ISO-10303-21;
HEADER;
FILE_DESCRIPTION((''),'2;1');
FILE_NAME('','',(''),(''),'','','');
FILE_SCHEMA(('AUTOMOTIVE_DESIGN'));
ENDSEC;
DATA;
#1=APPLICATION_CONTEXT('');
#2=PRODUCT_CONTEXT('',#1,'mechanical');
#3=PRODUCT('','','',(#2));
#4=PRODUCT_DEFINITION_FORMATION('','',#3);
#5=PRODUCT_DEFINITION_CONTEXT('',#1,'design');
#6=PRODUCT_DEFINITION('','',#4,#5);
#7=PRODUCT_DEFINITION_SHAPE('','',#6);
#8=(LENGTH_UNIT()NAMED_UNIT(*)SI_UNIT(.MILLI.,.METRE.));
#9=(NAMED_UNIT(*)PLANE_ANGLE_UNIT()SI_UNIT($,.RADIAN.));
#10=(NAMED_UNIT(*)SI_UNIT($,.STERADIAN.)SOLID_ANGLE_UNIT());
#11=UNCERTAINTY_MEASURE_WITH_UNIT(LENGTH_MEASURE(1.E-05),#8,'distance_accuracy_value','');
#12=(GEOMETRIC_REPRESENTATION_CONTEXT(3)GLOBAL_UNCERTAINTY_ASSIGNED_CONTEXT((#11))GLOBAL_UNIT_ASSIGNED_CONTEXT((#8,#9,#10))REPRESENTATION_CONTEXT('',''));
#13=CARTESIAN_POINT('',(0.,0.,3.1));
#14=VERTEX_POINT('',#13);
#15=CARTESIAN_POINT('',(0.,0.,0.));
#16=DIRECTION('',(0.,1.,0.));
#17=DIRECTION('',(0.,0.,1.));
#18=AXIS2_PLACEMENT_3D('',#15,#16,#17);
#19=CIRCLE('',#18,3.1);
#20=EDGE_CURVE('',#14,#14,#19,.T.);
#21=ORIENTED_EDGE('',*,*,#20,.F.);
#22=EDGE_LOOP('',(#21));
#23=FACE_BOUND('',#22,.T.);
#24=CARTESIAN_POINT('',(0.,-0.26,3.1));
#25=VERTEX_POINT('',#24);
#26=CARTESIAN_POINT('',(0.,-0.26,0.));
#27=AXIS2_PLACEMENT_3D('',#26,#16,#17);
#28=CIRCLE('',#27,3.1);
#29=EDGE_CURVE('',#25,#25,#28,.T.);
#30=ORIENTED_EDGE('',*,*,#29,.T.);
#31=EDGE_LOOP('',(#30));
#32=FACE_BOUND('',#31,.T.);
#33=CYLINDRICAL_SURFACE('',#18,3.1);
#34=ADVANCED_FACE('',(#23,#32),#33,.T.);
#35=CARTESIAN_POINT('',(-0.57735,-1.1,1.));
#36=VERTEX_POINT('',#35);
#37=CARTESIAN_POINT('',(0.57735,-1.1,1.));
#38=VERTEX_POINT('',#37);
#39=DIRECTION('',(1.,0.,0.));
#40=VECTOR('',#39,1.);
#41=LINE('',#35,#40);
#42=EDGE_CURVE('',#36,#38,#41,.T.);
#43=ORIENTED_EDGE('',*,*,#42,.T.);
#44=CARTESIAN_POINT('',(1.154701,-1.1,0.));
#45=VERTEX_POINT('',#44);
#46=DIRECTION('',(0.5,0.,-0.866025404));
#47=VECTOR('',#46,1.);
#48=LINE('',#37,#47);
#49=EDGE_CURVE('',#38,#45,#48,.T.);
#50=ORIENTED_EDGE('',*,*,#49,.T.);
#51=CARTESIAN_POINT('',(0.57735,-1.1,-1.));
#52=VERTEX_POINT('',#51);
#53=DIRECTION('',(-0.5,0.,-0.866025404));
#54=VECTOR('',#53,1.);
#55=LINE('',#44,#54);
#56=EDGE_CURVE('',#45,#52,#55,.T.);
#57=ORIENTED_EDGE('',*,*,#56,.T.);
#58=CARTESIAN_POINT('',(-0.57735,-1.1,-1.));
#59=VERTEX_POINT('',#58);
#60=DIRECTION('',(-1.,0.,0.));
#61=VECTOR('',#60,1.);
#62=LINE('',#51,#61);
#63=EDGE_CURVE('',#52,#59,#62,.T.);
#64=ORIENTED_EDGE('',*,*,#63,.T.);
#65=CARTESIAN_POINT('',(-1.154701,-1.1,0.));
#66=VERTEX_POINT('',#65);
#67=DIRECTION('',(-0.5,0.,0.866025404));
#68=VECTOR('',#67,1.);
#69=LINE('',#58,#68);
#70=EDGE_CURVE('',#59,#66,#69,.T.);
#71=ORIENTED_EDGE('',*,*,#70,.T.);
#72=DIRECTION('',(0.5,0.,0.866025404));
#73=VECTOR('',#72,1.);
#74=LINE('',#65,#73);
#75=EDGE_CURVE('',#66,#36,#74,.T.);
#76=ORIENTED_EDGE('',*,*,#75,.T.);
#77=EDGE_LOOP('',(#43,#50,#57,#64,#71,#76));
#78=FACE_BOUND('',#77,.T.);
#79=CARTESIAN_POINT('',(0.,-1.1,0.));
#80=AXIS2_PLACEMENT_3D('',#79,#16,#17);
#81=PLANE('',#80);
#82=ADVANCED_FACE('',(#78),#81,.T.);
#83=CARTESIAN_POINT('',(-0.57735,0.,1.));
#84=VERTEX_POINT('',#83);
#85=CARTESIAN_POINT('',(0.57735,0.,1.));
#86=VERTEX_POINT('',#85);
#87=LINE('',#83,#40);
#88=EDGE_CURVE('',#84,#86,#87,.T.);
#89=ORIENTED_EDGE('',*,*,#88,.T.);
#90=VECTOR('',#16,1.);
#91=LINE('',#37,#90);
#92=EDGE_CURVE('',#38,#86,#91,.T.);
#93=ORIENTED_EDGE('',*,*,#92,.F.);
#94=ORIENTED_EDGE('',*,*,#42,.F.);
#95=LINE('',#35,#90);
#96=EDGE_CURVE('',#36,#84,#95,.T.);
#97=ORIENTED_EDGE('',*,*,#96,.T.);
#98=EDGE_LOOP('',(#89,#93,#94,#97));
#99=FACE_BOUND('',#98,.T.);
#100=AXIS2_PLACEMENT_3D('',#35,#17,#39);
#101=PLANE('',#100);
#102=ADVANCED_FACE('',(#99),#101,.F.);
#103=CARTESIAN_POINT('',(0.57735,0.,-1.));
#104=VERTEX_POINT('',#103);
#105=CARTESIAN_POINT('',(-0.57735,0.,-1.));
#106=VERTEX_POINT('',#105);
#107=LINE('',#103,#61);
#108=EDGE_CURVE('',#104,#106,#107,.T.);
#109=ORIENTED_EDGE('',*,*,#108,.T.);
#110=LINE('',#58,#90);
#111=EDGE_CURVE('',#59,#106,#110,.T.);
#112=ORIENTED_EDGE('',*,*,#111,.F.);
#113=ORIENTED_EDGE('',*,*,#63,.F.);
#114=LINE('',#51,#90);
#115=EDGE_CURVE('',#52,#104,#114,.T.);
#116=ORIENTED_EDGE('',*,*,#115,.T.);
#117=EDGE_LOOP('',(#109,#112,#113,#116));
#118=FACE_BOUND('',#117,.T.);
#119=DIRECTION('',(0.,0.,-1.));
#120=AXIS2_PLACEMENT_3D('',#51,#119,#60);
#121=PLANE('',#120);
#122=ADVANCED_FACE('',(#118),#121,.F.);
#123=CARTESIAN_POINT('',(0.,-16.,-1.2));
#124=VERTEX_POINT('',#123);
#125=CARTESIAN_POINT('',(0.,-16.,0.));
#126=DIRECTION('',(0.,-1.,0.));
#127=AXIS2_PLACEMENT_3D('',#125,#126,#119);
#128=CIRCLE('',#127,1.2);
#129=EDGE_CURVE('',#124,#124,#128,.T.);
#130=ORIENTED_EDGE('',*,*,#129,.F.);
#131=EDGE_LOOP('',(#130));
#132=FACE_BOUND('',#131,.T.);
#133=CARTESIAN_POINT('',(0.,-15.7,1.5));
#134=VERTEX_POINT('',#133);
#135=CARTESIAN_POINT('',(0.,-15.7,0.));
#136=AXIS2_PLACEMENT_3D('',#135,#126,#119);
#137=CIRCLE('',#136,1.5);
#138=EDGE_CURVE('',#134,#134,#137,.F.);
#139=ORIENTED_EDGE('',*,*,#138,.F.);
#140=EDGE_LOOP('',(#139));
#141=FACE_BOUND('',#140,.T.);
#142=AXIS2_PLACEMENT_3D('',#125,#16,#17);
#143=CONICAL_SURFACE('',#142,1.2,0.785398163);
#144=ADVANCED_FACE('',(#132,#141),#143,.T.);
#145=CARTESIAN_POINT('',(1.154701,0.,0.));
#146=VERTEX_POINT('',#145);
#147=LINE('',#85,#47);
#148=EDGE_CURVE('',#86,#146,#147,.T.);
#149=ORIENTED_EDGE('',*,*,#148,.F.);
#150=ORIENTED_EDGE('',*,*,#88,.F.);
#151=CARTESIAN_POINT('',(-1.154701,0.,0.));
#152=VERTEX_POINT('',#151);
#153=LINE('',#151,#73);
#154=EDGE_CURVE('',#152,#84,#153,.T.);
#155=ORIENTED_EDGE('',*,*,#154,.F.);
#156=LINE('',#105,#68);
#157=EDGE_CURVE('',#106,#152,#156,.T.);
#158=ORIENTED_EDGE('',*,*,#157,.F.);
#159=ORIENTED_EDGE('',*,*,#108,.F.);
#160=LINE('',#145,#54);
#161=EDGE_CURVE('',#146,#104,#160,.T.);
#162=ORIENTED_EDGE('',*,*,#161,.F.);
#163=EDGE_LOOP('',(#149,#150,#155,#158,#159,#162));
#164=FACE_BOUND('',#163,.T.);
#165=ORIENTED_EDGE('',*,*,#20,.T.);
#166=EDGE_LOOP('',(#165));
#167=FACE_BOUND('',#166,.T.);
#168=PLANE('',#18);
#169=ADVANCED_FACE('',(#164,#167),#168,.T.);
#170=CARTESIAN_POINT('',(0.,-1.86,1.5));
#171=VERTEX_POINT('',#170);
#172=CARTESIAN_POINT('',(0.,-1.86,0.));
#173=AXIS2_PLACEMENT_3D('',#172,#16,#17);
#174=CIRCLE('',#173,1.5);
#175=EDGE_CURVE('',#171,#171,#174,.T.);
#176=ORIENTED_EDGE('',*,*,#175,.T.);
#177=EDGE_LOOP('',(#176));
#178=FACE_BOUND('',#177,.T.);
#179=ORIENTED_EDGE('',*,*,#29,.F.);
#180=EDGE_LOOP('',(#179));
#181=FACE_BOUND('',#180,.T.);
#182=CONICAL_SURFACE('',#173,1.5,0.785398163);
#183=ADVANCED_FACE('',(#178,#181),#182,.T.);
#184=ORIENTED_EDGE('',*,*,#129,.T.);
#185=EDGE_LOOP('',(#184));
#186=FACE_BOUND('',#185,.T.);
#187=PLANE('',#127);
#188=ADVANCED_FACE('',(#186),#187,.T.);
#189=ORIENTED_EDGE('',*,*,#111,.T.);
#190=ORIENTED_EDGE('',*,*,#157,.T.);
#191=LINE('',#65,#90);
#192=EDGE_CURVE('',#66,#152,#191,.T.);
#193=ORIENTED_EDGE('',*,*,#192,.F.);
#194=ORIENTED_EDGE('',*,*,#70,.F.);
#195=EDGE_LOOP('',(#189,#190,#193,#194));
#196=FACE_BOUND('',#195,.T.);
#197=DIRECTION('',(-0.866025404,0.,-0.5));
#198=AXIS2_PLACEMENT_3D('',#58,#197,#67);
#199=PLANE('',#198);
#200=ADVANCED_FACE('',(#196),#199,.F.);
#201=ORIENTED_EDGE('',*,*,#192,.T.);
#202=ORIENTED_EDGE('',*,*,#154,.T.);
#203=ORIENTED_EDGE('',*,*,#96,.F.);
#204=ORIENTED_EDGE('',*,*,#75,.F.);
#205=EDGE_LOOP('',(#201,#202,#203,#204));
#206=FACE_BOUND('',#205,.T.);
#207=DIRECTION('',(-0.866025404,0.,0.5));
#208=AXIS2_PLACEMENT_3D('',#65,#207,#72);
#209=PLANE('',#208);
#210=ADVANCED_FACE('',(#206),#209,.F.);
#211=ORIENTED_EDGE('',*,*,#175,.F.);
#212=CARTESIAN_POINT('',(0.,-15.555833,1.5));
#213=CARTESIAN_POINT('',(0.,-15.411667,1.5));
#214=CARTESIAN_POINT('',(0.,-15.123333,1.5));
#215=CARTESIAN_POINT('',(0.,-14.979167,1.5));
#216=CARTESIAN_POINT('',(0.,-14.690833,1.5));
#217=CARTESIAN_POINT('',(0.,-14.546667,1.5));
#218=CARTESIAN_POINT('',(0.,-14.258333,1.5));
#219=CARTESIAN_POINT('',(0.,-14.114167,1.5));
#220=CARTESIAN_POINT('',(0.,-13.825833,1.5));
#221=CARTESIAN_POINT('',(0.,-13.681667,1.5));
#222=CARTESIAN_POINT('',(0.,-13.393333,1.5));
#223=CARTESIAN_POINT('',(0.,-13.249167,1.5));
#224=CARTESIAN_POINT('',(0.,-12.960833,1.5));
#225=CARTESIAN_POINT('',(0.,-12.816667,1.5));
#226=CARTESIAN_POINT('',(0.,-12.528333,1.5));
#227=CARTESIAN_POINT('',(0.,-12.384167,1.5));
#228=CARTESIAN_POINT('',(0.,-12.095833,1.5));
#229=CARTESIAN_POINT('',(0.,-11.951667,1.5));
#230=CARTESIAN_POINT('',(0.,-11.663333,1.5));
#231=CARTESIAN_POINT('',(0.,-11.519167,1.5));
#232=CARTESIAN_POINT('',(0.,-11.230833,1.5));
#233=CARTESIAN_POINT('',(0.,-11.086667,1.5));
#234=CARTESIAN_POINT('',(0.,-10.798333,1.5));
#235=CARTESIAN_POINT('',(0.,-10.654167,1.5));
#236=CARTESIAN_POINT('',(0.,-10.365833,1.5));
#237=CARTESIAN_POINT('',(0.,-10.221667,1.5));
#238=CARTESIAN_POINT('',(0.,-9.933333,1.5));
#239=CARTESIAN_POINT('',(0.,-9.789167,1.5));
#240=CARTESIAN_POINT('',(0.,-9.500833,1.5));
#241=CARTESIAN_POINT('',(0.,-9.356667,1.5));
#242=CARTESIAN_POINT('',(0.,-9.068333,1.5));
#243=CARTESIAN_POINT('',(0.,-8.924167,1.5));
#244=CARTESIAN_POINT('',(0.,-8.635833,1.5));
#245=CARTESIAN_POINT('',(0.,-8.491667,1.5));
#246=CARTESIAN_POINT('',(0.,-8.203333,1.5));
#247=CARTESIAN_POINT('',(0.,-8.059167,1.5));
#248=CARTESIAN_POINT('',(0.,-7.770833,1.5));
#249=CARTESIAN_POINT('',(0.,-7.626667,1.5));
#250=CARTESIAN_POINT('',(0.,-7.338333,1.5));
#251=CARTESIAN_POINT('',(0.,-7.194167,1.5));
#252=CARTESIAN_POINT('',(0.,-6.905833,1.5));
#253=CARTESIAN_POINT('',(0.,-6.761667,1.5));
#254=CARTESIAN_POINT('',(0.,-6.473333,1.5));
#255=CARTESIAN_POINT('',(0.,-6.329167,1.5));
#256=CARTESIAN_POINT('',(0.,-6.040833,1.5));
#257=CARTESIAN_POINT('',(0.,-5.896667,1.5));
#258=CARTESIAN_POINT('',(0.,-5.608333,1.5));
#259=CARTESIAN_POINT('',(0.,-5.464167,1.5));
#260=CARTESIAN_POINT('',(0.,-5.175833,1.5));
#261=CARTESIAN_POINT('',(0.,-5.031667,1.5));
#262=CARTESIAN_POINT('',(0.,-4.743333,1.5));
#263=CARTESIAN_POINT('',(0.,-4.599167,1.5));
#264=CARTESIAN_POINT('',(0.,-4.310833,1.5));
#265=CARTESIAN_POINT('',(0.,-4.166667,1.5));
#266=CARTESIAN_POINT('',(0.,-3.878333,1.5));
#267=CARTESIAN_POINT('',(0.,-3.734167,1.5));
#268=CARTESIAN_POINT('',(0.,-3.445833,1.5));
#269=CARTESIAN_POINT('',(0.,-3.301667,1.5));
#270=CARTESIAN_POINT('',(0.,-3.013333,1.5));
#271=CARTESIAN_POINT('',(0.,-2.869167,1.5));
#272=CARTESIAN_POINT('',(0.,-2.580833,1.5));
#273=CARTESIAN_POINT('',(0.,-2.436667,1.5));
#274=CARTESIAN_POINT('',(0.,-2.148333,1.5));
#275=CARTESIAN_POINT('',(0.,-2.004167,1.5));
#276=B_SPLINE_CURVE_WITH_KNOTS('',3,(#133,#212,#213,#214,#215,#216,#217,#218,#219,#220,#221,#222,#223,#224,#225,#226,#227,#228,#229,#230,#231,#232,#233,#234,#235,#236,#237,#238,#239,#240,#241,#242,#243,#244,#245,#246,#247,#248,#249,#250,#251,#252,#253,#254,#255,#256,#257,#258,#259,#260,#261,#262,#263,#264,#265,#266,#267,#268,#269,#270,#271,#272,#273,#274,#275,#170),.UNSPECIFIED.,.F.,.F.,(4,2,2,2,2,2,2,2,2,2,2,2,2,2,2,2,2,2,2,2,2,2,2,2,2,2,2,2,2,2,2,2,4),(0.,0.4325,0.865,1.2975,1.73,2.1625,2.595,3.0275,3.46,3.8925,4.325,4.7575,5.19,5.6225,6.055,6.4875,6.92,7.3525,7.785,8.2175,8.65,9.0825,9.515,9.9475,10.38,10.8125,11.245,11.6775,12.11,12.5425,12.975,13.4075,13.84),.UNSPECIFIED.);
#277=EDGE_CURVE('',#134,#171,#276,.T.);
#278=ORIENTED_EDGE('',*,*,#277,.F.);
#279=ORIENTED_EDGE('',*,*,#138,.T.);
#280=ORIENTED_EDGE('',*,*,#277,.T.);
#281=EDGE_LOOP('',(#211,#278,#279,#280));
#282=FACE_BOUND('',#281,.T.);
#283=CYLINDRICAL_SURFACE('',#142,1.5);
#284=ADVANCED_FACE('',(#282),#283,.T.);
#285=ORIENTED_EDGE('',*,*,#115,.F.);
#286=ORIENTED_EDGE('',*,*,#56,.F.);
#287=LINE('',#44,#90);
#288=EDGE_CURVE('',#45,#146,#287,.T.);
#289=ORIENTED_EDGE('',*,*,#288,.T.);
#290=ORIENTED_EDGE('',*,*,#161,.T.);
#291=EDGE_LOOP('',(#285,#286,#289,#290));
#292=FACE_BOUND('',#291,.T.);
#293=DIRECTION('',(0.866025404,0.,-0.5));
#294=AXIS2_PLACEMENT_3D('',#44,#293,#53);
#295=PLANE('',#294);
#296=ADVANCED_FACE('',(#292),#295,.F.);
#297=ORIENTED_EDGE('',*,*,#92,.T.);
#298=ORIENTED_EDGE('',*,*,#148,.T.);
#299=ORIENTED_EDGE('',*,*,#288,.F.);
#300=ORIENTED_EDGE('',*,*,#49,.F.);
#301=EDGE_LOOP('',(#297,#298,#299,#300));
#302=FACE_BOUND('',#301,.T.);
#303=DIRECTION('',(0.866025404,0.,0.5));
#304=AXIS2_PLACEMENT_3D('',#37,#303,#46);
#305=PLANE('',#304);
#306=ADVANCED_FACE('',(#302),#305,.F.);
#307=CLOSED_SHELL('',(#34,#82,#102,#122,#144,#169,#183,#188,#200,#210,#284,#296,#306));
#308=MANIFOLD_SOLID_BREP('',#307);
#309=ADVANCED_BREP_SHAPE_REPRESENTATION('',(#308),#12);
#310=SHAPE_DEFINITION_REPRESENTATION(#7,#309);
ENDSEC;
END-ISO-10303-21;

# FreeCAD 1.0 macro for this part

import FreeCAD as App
import Part
import Sketcher
from FreeCAD import Vector
Q = App.Units.Quantity


def edges_at(feature, points):
    """Names of the edges that pass closest to the given points."""
    edges = feature.Shape.Edges
    near = lambda p: min(range(len(edges)), key=lambda i: edges[i].distToShape(Part.Vertex(*p))[0])
    return sorted({f"Edge{near(p) + 1}" for p in points})

doc = App.newDocument("Part")
params = doc.addObject("Spreadsheet::Sheet", "Params")
for row, (alias, value) in enumerate([
    ("sketch1_diameter", "6.72 mm"),
    ("pad1_length", "1.86 mm"),
    ("pocket1_length", "1.1 mm"),
    ("sketch3_diameter", "3 mm"),
    ("pad2_length", "14.14 mm"),
    ("sketch4_width", "0.26 mm"),
    ("sketch4_width2", "1.86 mm"),
    ("groove_angle", "360 deg"),
    ("chamfer_size", "0.3 mm"),
], start=1):
    params.set(f"A{row}", alias)
    params.set(f"B{row}", "=" + value)
    params.setAlias(f"B{row}", alias)

body = doc.addObject("PartDesign::Body", "Body")

# Sketch on XZ plane
sketch1 = body.newObject("Sketcher::SketchObject", "Sketch")
sketch1.AttachmentSupport = (doc.getObject("XZ_Plane"), [""])
sketch1.MapMode = "FlatFace"
sketch1.addGeometry(Part.Circle(Vector(0, 0, 0), Vector(0, 0, 1), 3.4), False)
sketch1.addConstraint(Sketcher.Constraint("Coincident", 0, 3, -1, 1))
sketch1.addConstraint(Sketcher.Constraint("Diameter", 0, Q("6.72 mm")))
sketch1.setExpression("Constraints[1]", "Params.sketch1_diameter")
pad1 = body.newObject("PartDesign::Pad", "Pad")
pad1.Profile = sketch1
pad1.setExpression("Length", "Params.pad1_length")

# Sketch on XZ plane
sketch2 = body.newObject("Sketcher::SketchObject", "Sketch001")
sketch2.AttachmentSupport = (doc.getObject("XZ_Plane"), [""])
sketch2.MapMode = "FlatFace"
sketch2.addGeometry(Part.LineSegment(Vector(0.6, 1, 0), Vector(1.2, 0, 0)), False)
sketch2.addGeometry(Part.LineSegment(Vector(1.2, 0, 0), Vector(0.6, -1, 0)), False)
sketch2.addGeometry(Part.LineSegment(Vector(0.6, -1, 0), Vector(-0.6, -1, 0)), False)
sketch2.addGeometry(Part.LineSegment(Vector(-0.6, -1, 0), Vector(-1.2, 0, 0)), False)
sketch2.addGeometry(Part.LineSegment(Vector(-1.2, 0, 0), Vector(-0.6, 1, 0)), False)
sketch2.addGeometry(Part.LineSegment(Vector(-0.6, 1, 0), Vector(0.6, 1, 0)), False)
sketch2.addConstraint(Sketcher.Constraint("Coincident", 0, 2, 1, 1))
sketch2.addConstraint(Sketcher.Constraint("Coincident", 1, 2, 2, 1))
sketch2.addConstraint(Sketcher.Constraint("Coincident", 2, 2, 3, 1))
sketch2.addConstraint(Sketcher.Constraint("Coincident", 3, 2, 4, 1))
sketch2.addConstraint(Sketcher.Constraint("Coincident", 4, 2, 5, 1))
sketch2.addConstraint(Sketcher.Constraint("Coincident", 5, 2, 0, 1))
sketch2.addConstraint(Sketcher.Constraint("Horizontal", 2))
sketch2.addConstraint(Sketcher.Constraint("Horizontal", 5))
sketch2.addConstraint(Sketcher.Constraint("Symmetric", 0, 2, 3, 2, -1, 1))
sketch2.addConstraint(Sketcher.Constraint("Symmetric", 1, 2, 4, 2, -1, 1))
sketch2.addConstraint(Sketcher.Constraint("PointOnObject", 0, 2, -1))
sketch2.addConstraint(Sketcher.Constraint("Parallel", 0, 3))
sketch2.addConstraint(Sketcher.Constraint("Vertical", 2, 2, 4, 2))
sketch2.addConstraint(Sketcher.Constraint("Angle", 0, Q("-60 deg")))
sketch2.addConstraint(Sketcher.Constraint("DistanceY", 1, 2, -1, 1, Q("1 mm")))
sketch2.addConstraint(Sketcher.Constraint("DistanceX", 2, 2, 2, 1, Q("1.154701 mm")))
pocket1 = body.newObject("PartDesign::Pocket", "Pocket")
pocket1.Profile = sketch2
pocket1.setExpression("Length", "Params.pocket1_length")
pocket1.Reversed = True

# Sketch on XZ plane
sketch3 = body.newObject("Sketcher::SketchObject", "Sketch002")
sketch3.AttachmentSupport = (doc.getObject("XZ_Plane"), [""])
sketch3.MapMode = "FlatFace"
sketch3.AttachmentOffset = App.Placement(Vector(0, 0, 1.86), App.Rotation())
sketch3.addGeometry(Part.Circle(Vector(0, 0, 0), Vector(0, 0, 1), 1.5), False)
sketch3.addConstraint(Sketcher.Constraint("Coincident", 0, 3, -1, 1))
sketch3.addConstraint(Sketcher.Constraint("Diameter", 0, Q("3 mm")))
sketch3.setExpression("Constraints[1]", "Params.sketch3_diameter")
pad2 = body.newObject("PartDesign::Pad", "Pad001")
pad2.Profile = sketch3
pad2.setExpression("Length", "Params.pad2_length")

# Sketch on YZ plane
sketch4 = body.newObject("Sketcher::SketchObject", "Sketch003")
sketch4.AttachmentSupport = (doc.getObject("YZ_Plane"), [""])
sketch4.MapMode = "FlatFace"
sketch4.addGeometry(Part.LineSegment(Vector(-1.86, 1.5, 0), Vector(-0.26, 3.1, 0)), False)
sketch4.addGeometry(Part.LineSegment(Vector(-0.26, 3.1, 0), Vector(0, 3.1, 0)), False)
sketch4.addGeometry(Part.LineSegment(Vector(0, 3.1, 0), Vector(0, 3.36, 0)), False)
sketch4.addGeometry(Part.LineSegment(Vector(0, 3.36, 0), Vector(-1.86, 3.36, 0)), False)
sketch4.addGeometry(Part.LineSegment(Vector(-1.86, 3.36, 0), Vector(-1.86, 1.5, 0)), False)
sketch4.addConstraint(Sketcher.Constraint("Coincident", 0, 2, 1, 1))
sketch4.addConstraint(Sketcher.Constraint("Coincident", 1, 2, 2, 1))
sketch4.addConstraint(Sketcher.Constraint("Coincident", 2, 2, 3, 1))
sketch4.addConstraint(Sketcher.Constraint("Coincident", 3, 2, 4, 1))
sketch4.addConstraint(Sketcher.Constraint("Coincident", 4, 2, 0, 1))
sketch4.addConstraint(Sketcher.Constraint("Horizontal", 1))
sketch4.addConstraint(Sketcher.Constraint("Vertical", 2))
sketch4.addConstraint(Sketcher.Constraint("Horizontal", 3))
sketch4.addConstraint(Sketcher.Constraint("Vertical", 4))
sketch4.addConstraint(Sketcher.Constraint("PointOnObject", 1, 2, -2))
sketch4.addConstraint(Sketcher.Constraint("Equal", 1, 2))
sketch4.addConstraint(Sketcher.Constraint("Equal", 3, 4))
sketch4.addConstraint(Sketcher.Constraint("DistanceX", 1, 1, 1, 2, Q("0.26 mm")))
sketch4.addConstraint(Sketcher.Constraint("DistanceX", 3, 2, 3, 1, Q("1.86 mm")))
sketch4.addConstraint(Sketcher.Constraint("DistanceY", -1, 1, 0, 2, Q("3.1 mm")))
sketch4.setExpression("Constraints[12]", "Params.sketch4_width")
sketch4.setExpression("Constraints[13]", "Params.sketch4_width2")
groove = body.newObject("PartDesign::Groove", "Groove")
groove.Profile = sketch4
groove.ReferenceAxis = (sketch4, ["H_Axis"])
groove.setExpression("Angle", "Params.groove_angle")
doc.recompute()

chamfer = body.newObject("PartDesign::Chamfer", "Chamfer")
chamfer.Base = (groove, edges_at(groove, [(0, -16, -1.5)]))
chamfer.setExpression("Size", "Params.chamfer_size")

doc.recompute()
